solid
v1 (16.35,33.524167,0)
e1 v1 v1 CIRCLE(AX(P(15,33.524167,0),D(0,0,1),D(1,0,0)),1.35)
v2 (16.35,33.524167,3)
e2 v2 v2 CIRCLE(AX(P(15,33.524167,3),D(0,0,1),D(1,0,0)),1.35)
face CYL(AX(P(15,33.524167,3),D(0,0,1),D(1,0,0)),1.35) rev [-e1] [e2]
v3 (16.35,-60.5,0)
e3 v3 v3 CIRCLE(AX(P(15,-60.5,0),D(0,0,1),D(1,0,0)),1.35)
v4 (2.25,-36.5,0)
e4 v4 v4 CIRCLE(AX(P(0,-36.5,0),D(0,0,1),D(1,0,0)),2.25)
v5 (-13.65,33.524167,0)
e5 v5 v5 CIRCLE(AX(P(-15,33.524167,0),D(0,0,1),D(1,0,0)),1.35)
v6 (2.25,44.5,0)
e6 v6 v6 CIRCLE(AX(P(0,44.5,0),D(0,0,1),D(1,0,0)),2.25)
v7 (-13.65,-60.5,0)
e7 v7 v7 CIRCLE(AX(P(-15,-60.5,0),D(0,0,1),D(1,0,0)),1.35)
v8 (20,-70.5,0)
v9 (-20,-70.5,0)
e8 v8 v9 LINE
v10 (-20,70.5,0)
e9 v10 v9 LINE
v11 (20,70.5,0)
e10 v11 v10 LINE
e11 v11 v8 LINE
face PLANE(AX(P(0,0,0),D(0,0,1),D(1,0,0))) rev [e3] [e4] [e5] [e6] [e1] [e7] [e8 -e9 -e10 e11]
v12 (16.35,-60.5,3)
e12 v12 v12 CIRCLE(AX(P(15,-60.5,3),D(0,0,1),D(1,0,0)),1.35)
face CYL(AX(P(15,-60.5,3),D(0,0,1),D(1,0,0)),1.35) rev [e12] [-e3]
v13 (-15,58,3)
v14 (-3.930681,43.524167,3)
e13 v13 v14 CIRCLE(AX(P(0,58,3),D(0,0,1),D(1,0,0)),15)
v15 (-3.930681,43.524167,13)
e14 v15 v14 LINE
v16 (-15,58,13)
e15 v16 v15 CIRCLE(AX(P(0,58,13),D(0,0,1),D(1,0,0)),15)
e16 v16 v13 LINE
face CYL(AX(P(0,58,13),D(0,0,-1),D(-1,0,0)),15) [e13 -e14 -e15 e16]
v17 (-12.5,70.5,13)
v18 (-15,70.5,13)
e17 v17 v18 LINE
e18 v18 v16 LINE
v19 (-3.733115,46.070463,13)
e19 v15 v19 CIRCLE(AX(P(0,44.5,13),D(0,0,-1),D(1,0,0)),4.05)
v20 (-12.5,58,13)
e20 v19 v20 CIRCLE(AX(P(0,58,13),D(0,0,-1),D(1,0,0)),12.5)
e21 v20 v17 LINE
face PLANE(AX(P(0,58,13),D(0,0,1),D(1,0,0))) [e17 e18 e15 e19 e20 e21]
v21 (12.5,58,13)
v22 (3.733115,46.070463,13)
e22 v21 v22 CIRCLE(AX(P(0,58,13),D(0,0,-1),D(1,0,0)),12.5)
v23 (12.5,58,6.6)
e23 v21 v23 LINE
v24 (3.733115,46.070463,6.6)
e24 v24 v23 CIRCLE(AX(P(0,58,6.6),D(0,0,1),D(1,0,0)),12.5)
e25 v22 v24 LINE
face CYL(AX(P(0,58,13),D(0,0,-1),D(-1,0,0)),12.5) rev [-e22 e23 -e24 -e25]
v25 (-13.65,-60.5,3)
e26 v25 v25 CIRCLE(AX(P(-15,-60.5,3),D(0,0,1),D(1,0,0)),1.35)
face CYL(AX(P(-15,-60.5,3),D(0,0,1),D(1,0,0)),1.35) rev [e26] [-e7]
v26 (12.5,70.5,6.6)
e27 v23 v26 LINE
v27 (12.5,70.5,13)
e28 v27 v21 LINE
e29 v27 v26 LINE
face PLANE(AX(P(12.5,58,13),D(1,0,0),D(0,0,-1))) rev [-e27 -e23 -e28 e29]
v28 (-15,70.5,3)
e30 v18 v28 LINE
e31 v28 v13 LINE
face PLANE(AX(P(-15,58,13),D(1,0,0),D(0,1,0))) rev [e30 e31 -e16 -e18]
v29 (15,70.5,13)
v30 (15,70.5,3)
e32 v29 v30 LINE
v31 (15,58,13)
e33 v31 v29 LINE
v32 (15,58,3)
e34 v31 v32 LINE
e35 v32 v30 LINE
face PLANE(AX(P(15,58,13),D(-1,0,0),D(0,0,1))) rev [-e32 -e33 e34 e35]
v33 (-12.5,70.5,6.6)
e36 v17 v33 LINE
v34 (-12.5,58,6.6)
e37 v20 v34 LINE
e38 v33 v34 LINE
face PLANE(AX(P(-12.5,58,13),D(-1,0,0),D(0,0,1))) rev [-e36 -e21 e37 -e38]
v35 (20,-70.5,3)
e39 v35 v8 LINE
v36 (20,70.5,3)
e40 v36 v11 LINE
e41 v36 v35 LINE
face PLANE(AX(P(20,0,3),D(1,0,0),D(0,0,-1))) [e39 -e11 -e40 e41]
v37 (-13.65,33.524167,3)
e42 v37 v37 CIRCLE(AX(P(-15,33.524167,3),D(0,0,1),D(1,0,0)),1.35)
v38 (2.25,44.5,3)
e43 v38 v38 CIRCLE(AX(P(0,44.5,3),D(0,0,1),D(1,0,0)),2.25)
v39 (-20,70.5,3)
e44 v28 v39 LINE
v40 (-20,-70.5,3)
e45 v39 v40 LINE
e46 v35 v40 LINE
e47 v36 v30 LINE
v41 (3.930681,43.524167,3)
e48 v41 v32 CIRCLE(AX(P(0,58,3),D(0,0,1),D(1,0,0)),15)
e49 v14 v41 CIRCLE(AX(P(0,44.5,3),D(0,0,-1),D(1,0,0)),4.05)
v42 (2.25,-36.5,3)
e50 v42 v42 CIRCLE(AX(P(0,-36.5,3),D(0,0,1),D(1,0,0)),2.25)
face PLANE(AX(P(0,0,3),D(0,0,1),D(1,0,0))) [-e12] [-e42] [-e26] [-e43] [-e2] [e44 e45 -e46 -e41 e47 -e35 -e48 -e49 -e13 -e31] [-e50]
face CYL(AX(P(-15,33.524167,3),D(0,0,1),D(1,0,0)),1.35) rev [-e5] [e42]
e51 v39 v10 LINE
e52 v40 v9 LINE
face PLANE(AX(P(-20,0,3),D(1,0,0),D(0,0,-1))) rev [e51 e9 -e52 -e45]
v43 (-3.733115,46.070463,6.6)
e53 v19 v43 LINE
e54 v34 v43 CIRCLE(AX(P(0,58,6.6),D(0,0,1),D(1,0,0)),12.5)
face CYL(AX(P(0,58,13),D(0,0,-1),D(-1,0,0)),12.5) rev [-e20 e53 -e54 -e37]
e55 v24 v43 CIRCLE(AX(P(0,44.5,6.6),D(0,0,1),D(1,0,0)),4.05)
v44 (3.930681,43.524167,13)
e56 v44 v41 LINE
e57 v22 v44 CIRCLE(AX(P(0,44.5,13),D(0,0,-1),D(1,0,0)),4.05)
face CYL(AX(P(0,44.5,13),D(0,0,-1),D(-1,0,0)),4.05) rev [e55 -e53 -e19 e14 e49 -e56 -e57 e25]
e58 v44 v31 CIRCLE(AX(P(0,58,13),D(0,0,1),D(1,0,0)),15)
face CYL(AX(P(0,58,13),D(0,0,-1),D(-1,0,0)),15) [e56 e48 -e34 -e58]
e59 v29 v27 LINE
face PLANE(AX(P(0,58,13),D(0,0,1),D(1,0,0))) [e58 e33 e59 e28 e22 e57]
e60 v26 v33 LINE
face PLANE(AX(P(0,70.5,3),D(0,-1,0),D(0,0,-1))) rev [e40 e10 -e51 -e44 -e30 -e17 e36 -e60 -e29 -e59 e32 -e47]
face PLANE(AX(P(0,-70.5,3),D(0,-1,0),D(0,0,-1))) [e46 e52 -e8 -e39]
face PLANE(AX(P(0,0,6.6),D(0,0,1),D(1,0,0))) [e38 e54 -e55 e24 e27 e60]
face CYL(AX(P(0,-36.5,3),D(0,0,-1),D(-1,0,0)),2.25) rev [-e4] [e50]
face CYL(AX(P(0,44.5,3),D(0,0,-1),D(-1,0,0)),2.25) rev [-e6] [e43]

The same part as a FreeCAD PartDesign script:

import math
import FreeCAD as App
import Part
import Sketcher
from FreeCAD import Vector


def add_polygon(sketch, points):
    """Adds a closed chain of lines whose ends are joined by coincident constraints."""
    first, n = sketch.GeometryCount, len(points)
    for a, b in zip(points, points[1:] + points[:1]):
        sketch.addGeometry(Part.LineSegment(App.Vector(*a, 0), App.Vector(*b, 0)), False)
    for i in range(n):
        sketch.addConstraint(Sketcher.Constraint("Coincident", first + i, 2, first + (i + 1) % n, 1))

doc = App.newDocument("Part")
body = doc.addObject("PartDesign::Body", "Body")

# Sketch on XY plane
sketch1 = body.newObject("Sketcher::SketchObject", "Sketch")
sketch1.AttachmentSupport = (doc.getObject("XY_Plane"), [""])
sketch1.MapMode = "FlatFace"
add_polygon(sketch1, [(-20, 70.5), (-20, -70.5), (20, -70.5), (20, 70.5)])  # lines 0-3
sketch1.addGeometry(Part.Circle(Vector(0, -36.5, 0), Vector(0, 0, 1), 2.25), False)  # 4
sketch1.addGeometry(Part.Circle(Vector(0, 44.5, 0), Vector(0, 0, 1), 2.25), False)  # 5
sketch1.addConstraint([
    Sketcher.Constraint("Vertical", 0),
    Sketcher.Constraint("Horizontal", 1),
    Sketcher.Constraint("Vertical", 2),
    Sketcher.Constraint("Horizontal", 3),
    Sketcher.Constraint("Equal", 4, 5),
    Sketcher.Constraint("Symmetric", 0, 2, 2, 2, -1, 1),
    Sketcher.Constraint("PointOnObject", 4, 3, -2),
    Sketcher.Constraint("PointOnObject", 5, 3, -2),
    Sketcher.Constraint("Diameter", 4, 4.5),
    Sketcher.Constraint("DistanceX", 1, 1, 1, 2, 40.0),
    Sketcher.Constraint("DistanceY", 0, 2, 0, 1, 141.0),
    Sketcher.Constraint("DistanceY", 4, 3, 5, 3, 81.0),
    Sketcher.Constraint("DistanceY", 0, 2, 4, 3, 34.0),
])
pad1 = body.newObject("PartDesign::Pad", "Pad")
pad1.Profile = sketch1
pad1.Length = 3

# Sketch on XY plane
sketch2 = body.newObject("Sketcher::SketchObject", "Sketch001")
sketch2.AttachmentSupport = (doc.getObject("XY_Plane"), [""])
sketch2.MapMode = "FlatFace"
sketch2.AttachmentOffset = App.Placement(Vector(0, 0, 3), App.Rotation())
sketch2.addGeometry([
    Part.LineSegment(Vector(15, 58, 0), Vector(15, 70.5, 0)),  # 0
    Part.LineSegment(Vector(15, 70.5, 0), Vector(12.5, 70.5, 0)),  # 1
    Part.LineSegment(Vector(12.5, 70.5, 0), Vector(12.5, 58, 0)),  # 2
    Part.ArcOfCircle(Part.Circle(Vector(0, 58, 0), Vector(0, 0, 1), 12.5), math.radians(-72.623512), math.radians(0)),  # 3
    Part.ArcOfCircle(Part.Circle(Vector(0, 44.5, 0), Vector(0, 0, 1), 4.05), math.radians(-13.94241), math.radians(22.815728)),  # 4
    Part.ArcOfCircle(Part.Circle(Vector(0, 58, 0), Vector(0, 0, 1), 15), math.radians(-74.808538), math.radians(0)),  # 5
    Part.LineSegment(Vector(-12.5, 58, 0), Vector(-12.5, 70.5, 0)),  # 6
    Part.LineSegment(Vector(-12.5, 70.5, 0), Vector(-15, 70.5, 0)),  # 7
    Part.LineSegment(Vector(-15, 70.5, 0), Vector(-15, 58, 0)),  # 8
    Part.ArcOfCircle(Part.Circle(Vector(0, 58, 0), Vector(0, 0, 1), 15), math.radians(180), math.radians(254.808538)),  # 9
    Part.ArcOfCircle(Part.Circle(Vector(0, 44.5, 0), Vector(0, 0, 1), 4.05), math.radians(157.184272), math.radians(193.94241)),  # 10
    Part.ArcOfCircle(Part.Circle(Vector(0, 58, 0), Vector(0, 0, 1), 12.5), math.radians(180), math.radians(252.623512)),  # 11
], False)
sketch2.addConstraint([
    Sketcher.Constraint("Coincident", 0, 2, 1, 1),
    Sketcher.Constraint("Coincident", 1, 2, 2, 1),
    Sketcher.Constraint("Tangent", 2, 2, 3, 2),
    Sketcher.Constraint("Coincident", 3, 1, 4, 2),
    Sketcher.Constraint("Coincident", 4, 1, 5, 1),
    Sketcher.Constraint("Tangent", 5, 2, 0, 1),
    Sketcher.Constraint("Coincident", 6, 2, 7, 1),
    Sketcher.Constraint("Coincident", 7, 2, 8, 1),
    Sketcher.Constraint("Tangent", 8, 2, 9, 1),
    Sketcher.Constraint("Coincident", 9, 2, 10, 2),
    Sketcher.Constraint("Coincident", 10, 1, 11, 2),
    Sketcher.Constraint("Tangent", 11, 1, 6, 1),
    Sketcher.Constraint("Vertical", 0),
    Sketcher.Constraint("Horizontal", 1),
    Sketcher.Constraint("Vertical", 2),
    Sketcher.Constraint("Vertical", 6),
    Sketcher.Constraint("Horizontal", 7),
    Sketcher.Constraint("Vertical", 8),
    Sketcher.Constraint("Coincident", 5, 3, 3, 3),
    Sketcher.Constraint("Coincident", 9, 3, 3, 3),
    Sketcher.Constraint("Coincident", 10, 3, 4, 3),
    Sketcher.Constraint("Coincident", 11, 3, 3, 3),
    Sketcher.Constraint("Equal", 5, 9),
    Sketcher.Constraint("Equal", 4, 10),
    Sketcher.Constraint("Equal", 3, 11),
    Sketcher.Constraint("Symmetric", 1, 2, 6, 2, -2),
    Sketcher.Constraint("PointOnObject", 4, 3, -2),
    Sketcher.Constraint("Radius", 5, 15.0),
    Sketcher.Constraint("Radius", 3, 12.5),
    Sketcher.Constraint("Radius", 4, 4.05),
    Sketcher.Constraint("DistanceY", 0, 1, 0, 2, 12.5),
    Sketcher.Constraint("DistanceY", -1, 1, 3, 3, 58.0),
    Sketcher.Constraint("DistanceY", 10, 3, 0, 2, 26.0),
])
pad2 = body.newObject("PartDesign::Pad", "Pad001")
pad2.Profile = sketch2
pad2.Length = 10

# Sketch on XY plane
sketch3 = body.newObject("Sketcher::SketchObject", "Sketch002")
sketch3.AttachmentSupport = (doc.getObject("XY_Plane"), [""])
sketch3.MapMode = "FlatFace"
sketch3.AttachmentOffset = App.Placement(Vector(0, 0, 3), App.Rotation())
sketch3.addGeometry([
    Part.LineSegment(Vector(12.5, 58, 0), Vector(12.5, 70.5, 0)),  # 0
    Part.LineSegment(Vector(12.5, 70.5, 0), Vector(-12.5, 70.5, 0)),  # 1
    Part.LineSegment(Vector(-12.5, 70.5, 0), Vector(-12.5, 58, 0)),  # 2
    Part.ArcOfCircle(Part.Circle(Vector(0, 58, 0), Vector(0, 0, 1), 12.5), math.radians(180), math.radians(252.623512)),  # 3
    Part.ArcOfCircle(Part.Circle(Vector(0, 44.5, 0), Vector(0, 0, 1), 4.05), math.radians(22.815728), math.radians(157.184272)),  # 4
    Part.ArcOfCircle(Part.Circle(Vector(0, 58, 0), Vector(0, 0, 1), 12.5), math.radians(-72.623512), math.radians(0)),  # 5
], False)
sketch3.addConstraint([
    Sketcher.Constraint("Coincident", 0, 2, 1, 1),
    Sketcher.Constraint("Coincident", 1, 2, 2, 1),
    Sketcher.Constraint("Tangent", 2, 2, 3, 1),
    Sketcher.Constraint("Coincident", 3, 2, 4, 2),
    Sketcher.Constraint("Coincident", 4, 1, 5, 1),
    Sketcher.Constraint("Tangent", 5, 2, 0, 1),
    Sketcher.Constraint("Vertical", 0),
    Sketcher.Constraint("Horizontal", 1),
    Sketcher.Constraint("Vertical", 2),
    Sketcher.Constraint("Coincident", 5, 3, 3, 3),
    Sketcher.Constraint("Equal", 3, 5),
    Sketcher.Constraint("Symmetric", 3, 2, 4, 1, -2),
    Sketcher.Constraint("Radius", 3, 12.5),
    Sketcher.Constraint("Radius", 4, 4.05),
    Sketcher.Constraint("DistanceY", 0, 1, 0, 2, 12.5),
    Sketcher.Constraint("DistanceY", -1, 1, 3, 3, 58.0),
    Sketcher.Constraint("DistanceY", 4, 3, 0, 2, 26.0),
])
pad3 = body.newObject("PartDesign::Pad", "Pad002")
pad3.Profile = sketch3
pad3.Length = 3.6

# Sketch on XY plane
sketch4 = body.newObject("Sketcher::SketchObject", "Sketch003")
sketch4.AttachmentSupport = (doc.getObject("XY_Plane"), [""])
sketch4.MapMode = "FlatFace"
sketch4.AttachmentOffset = App.Placement(Vector(0, 0, 3), App.Rotation())
sketch4.addGeometry([
    Part.Circle(Vector(-15, 33.524167, 0), Vector(0, 0, 1), 1.35),
    Part.Circle(Vector(-15, -60.5, 0), Vector(0, 0, 1), 1.35),
], False)
sketch4.addConstraint([
    Sketcher.Constraint("Equal", 0, 1),
    Sketcher.Constraint("Vertical", 0, 3, 1, 3),
    Sketcher.Constraint("Diameter", 0, 2.7),
    Sketcher.Constraint("DistanceX", 0, 3, -1, 1, 15.0),
    Sketcher.Constraint("DistanceY", 1, 3, -1, 1, 60.5),
    Sketcher.Constraint("DistanceY", -1, 1, 0, 3, 33.524167),
])
doc.recompute()
hole = body.newObject("PartDesign::Hole", "Hole")
hole.Profile = sketch4
hole.ThreadType = "None"
hole.Diameter = 2.7
hole.DepthType = "ThroughAll"
doc.recompute()

mirrored = body.newObject("PartDesign::Mirrored", "Mirrored")
mirrored.Originals = [hole]
mirrored.MirrorPlane = (doc.getObject("YZ_Plane"), [""])
body.Tip = mirrored

doc.recompute()
